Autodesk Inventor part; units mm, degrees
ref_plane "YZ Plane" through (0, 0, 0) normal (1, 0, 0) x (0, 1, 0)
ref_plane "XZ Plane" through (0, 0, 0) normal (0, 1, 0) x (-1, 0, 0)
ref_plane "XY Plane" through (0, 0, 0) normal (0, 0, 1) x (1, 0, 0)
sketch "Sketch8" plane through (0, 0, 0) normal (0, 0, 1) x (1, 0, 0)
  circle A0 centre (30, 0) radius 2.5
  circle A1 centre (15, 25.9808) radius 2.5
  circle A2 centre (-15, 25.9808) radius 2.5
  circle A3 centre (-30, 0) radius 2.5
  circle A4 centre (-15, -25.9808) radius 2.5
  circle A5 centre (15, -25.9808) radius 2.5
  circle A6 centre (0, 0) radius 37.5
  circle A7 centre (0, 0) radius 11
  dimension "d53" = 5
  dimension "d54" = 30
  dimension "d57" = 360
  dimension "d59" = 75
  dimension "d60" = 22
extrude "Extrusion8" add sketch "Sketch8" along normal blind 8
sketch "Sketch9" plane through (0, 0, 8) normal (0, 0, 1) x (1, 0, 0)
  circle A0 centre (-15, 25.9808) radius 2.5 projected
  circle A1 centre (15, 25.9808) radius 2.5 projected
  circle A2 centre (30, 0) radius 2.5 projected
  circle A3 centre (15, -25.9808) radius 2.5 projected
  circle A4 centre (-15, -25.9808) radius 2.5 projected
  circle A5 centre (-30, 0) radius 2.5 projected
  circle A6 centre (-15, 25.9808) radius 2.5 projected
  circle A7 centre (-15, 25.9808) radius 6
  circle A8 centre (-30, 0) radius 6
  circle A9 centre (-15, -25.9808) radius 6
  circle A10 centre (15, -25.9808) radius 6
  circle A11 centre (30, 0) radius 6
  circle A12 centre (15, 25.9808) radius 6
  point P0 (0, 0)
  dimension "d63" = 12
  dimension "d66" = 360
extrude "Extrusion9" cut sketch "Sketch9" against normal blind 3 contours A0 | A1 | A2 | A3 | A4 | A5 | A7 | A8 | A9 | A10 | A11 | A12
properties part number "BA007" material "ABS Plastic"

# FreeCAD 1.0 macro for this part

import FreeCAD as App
import Part
import Sketcher
from FreeCAD import Vector
Q = App.Units.Quantity

doc = App.newDocument("Part")
body = doc.addObject("PartDesign::Body", "Body")

# Sketch on XY plane
sketch1 = body.newObject("Sketcher::SketchObject", "Sketch")
sketch1.AttachmentSupport = (doc.getObject("XY_Plane"), [""])
sketch1.MapMode = "FlatFace"
sketch1.addGeometry(Part.Circle(Vector(0, 0, 0), Vector(0, 0, 1), 37.5), False)
sketch1.addGeometry(Part.Circle(Vector(-15, -25.9808, 0), Vector(0, 0, 1), 2.5), False)
sketch1.addGeometry(Part.Circle(Vector(15, -25.9808, 0), Vector(0, 0, 1), 2.5), False)
sketch1.addGeometry(Part.Circle(Vector(-30, 0, 0), Vector(0, 0, 1), 2.5), False)
sketch1.addGeometry(Part.Circle(Vector(-15, 25.9808, 0), Vector(0, 0, 1), 2.5), False)
sketch1.addGeometry(Part.Circle(Vector(0, 0, 0), Vector(0, 0, 1), 11), False)
sketch1.addGeometry(Part.Circle(Vector(30, 0, 0), Vector(0, 0, 1), 2.5), False)
sketch1.addGeometry(Part.Circle(Vector(15, 25.9808, 0), Vector(0, 0, 1), 2.5), False)
sketch1.addConstraint(Sketcher.Constraint("Coincident", 0, 3, -1, 1))
sketch1.addConstraint(Sketcher.Constraint("Coincident", 5, 3, -1, 1))
sketch1.addConstraint(Sketcher.Constraint("Equal", 1, 2))
sketch1.addConstraint(Sketcher.Constraint("Equal", 2, 3))
sketch1.addConstraint(Sketcher.Constraint("Equal", 3, 4))
sketch1.addConstraint(Sketcher.Constraint("Equal", 4, 6))
sketch1.addConstraint(Sketcher.Constraint("Equal", 6, 7))
sketch1.addConstraint(Sketcher.Constraint("Symmetric", 2, 3, 4, 3, -1, 1))
sketch1.addConstraint(Sketcher.Constraint("Symmetric", 3, 3, 6, 3, -1, 1))
sketch1.addConstraint(Sketcher.Constraint("Symmetric", 1, 3, 7, 3, -1, 1))
sketch1.addConstraint(Sketcher.Constraint("Symmetric", 1, 3, 2, 3, -2))
sketch1.addConstraint(Sketcher.Constraint("PointOnObject", 3, 3, -1))
sketch1.addConstraint(Sketcher.Constraint("Diameter", 0, Q("75 mm")))
sketch1.addConstraint(Sketcher.Constraint("Diameter", 1, Q("5 mm")))
sketch1.addConstraint(Sketcher.Constraint("Diameter", 5, Q("22 mm")))
sketch1.addConstraint(Sketcher.Constraint("DistanceX", 3, 3, -1, 1, Q("30 mm")))
sketch1.addConstraint(Sketcher.Constraint("DistanceX", 1, 3, 2, 3, Q("30 mm")))
sketch1.addConstraint(Sketcher.Constraint("DistanceY", 1, 3, -1, 1, Q("25.9808 mm")))
pad1 = body.newObject("PartDesign::Pad", "Pad")
pad1.Profile = sketch1
pad1.Length = 8

# Sketch on XY plane
sketch2 = body.newObject("Sketcher::SketchObject", "Sketch001")
sketch2.AttachmentSupport = (doc.getObject("XY_Plane"), [""])
sketch2.MapMode = "FlatFace"
sketch2.AttachmentOffset = App.Placement(Vector(0, 0, 8), App.Rotation())
sketch2.addGeometry(Part.Circle(Vector(-15, 25.9808, 0), Vector(0, 0, 1), 6), False)
sketch2.addGeometry(Part.Circle(Vector(15, 25.9808, 0), Vector(0, 0, 1), 6), False)
sketch2.addGeometry(Part.Circle(Vector(30, 0, 0), Vector(0, 0, 1), 6), False)
sketch2.addGeometry(Part.Circle(Vector(15, -25.9808, 0), Vector(0, 0, 1), 6), False)
sketch2.addGeometry(Part.Circle(Vector(-15, -25.9808, 0), Vector(0, 0, 1), 6), False)
sketch2.addGeometry(Part.Circle(Vector(-30, 0, 0), Vector(0, 0, 1), 6), False)
sketch2.addConstraint(Sketcher.Constraint("Equal", 0, 1))
sketch2.addConstraint(Sketcher.Constraint("Equal", 1, 2))
sketch2.addConstraint(Sketcher.Constraint("Equal", 2, 3))
sketch2.addConstraint(Sketcher.Constraint("Equal", 3, 4))
sketch2.addConstraint(Sketcher.Constraint("Equal", 4, 5))
sketch2.addConstraint(Sketcher.Constraint("Symmetric", 0, 3, 3, 3, -1, 1))
sketch2.addConstraint(Sketcher.Constraint("Symmetric", 1, 3, 4, 3, -1, 1))
sketch2.addConstraint(Sketcher.Constraint("Symmetric", 2, 3, 5, 3, -1, 1))
sketch2.addConstraint(Sketcher.Constraint("Symmetric", 0, 3, 1, 3, -2))
sketch2.addConstraint(Sketcher.Constraint("PointOnObject", 2, 3, -1))
sketch2.addConstraint(Sketcher.Constraint("Diameter", 0, Q("12 mm")))
sketch2.addConstraint(Sketcher.Constraint("DistanceX", 0, 3, -1, 1, Q("15 mm")))
sketch2.addConstraint(Sketcher.Constraint("DistanceX", -1, 1, 2, 3, Q("30 mm")))
sketch2.addConstraint(Sketcher.Constraint("DistanceY", -1, 1, 0, 3, Q("25.9808 mm")))
pocket1 = body.newObject("PartDesign::Pocket", "Pocket")
pocket1.Profile = sketch2
pocket1.Length = 3

doc.recompute()
